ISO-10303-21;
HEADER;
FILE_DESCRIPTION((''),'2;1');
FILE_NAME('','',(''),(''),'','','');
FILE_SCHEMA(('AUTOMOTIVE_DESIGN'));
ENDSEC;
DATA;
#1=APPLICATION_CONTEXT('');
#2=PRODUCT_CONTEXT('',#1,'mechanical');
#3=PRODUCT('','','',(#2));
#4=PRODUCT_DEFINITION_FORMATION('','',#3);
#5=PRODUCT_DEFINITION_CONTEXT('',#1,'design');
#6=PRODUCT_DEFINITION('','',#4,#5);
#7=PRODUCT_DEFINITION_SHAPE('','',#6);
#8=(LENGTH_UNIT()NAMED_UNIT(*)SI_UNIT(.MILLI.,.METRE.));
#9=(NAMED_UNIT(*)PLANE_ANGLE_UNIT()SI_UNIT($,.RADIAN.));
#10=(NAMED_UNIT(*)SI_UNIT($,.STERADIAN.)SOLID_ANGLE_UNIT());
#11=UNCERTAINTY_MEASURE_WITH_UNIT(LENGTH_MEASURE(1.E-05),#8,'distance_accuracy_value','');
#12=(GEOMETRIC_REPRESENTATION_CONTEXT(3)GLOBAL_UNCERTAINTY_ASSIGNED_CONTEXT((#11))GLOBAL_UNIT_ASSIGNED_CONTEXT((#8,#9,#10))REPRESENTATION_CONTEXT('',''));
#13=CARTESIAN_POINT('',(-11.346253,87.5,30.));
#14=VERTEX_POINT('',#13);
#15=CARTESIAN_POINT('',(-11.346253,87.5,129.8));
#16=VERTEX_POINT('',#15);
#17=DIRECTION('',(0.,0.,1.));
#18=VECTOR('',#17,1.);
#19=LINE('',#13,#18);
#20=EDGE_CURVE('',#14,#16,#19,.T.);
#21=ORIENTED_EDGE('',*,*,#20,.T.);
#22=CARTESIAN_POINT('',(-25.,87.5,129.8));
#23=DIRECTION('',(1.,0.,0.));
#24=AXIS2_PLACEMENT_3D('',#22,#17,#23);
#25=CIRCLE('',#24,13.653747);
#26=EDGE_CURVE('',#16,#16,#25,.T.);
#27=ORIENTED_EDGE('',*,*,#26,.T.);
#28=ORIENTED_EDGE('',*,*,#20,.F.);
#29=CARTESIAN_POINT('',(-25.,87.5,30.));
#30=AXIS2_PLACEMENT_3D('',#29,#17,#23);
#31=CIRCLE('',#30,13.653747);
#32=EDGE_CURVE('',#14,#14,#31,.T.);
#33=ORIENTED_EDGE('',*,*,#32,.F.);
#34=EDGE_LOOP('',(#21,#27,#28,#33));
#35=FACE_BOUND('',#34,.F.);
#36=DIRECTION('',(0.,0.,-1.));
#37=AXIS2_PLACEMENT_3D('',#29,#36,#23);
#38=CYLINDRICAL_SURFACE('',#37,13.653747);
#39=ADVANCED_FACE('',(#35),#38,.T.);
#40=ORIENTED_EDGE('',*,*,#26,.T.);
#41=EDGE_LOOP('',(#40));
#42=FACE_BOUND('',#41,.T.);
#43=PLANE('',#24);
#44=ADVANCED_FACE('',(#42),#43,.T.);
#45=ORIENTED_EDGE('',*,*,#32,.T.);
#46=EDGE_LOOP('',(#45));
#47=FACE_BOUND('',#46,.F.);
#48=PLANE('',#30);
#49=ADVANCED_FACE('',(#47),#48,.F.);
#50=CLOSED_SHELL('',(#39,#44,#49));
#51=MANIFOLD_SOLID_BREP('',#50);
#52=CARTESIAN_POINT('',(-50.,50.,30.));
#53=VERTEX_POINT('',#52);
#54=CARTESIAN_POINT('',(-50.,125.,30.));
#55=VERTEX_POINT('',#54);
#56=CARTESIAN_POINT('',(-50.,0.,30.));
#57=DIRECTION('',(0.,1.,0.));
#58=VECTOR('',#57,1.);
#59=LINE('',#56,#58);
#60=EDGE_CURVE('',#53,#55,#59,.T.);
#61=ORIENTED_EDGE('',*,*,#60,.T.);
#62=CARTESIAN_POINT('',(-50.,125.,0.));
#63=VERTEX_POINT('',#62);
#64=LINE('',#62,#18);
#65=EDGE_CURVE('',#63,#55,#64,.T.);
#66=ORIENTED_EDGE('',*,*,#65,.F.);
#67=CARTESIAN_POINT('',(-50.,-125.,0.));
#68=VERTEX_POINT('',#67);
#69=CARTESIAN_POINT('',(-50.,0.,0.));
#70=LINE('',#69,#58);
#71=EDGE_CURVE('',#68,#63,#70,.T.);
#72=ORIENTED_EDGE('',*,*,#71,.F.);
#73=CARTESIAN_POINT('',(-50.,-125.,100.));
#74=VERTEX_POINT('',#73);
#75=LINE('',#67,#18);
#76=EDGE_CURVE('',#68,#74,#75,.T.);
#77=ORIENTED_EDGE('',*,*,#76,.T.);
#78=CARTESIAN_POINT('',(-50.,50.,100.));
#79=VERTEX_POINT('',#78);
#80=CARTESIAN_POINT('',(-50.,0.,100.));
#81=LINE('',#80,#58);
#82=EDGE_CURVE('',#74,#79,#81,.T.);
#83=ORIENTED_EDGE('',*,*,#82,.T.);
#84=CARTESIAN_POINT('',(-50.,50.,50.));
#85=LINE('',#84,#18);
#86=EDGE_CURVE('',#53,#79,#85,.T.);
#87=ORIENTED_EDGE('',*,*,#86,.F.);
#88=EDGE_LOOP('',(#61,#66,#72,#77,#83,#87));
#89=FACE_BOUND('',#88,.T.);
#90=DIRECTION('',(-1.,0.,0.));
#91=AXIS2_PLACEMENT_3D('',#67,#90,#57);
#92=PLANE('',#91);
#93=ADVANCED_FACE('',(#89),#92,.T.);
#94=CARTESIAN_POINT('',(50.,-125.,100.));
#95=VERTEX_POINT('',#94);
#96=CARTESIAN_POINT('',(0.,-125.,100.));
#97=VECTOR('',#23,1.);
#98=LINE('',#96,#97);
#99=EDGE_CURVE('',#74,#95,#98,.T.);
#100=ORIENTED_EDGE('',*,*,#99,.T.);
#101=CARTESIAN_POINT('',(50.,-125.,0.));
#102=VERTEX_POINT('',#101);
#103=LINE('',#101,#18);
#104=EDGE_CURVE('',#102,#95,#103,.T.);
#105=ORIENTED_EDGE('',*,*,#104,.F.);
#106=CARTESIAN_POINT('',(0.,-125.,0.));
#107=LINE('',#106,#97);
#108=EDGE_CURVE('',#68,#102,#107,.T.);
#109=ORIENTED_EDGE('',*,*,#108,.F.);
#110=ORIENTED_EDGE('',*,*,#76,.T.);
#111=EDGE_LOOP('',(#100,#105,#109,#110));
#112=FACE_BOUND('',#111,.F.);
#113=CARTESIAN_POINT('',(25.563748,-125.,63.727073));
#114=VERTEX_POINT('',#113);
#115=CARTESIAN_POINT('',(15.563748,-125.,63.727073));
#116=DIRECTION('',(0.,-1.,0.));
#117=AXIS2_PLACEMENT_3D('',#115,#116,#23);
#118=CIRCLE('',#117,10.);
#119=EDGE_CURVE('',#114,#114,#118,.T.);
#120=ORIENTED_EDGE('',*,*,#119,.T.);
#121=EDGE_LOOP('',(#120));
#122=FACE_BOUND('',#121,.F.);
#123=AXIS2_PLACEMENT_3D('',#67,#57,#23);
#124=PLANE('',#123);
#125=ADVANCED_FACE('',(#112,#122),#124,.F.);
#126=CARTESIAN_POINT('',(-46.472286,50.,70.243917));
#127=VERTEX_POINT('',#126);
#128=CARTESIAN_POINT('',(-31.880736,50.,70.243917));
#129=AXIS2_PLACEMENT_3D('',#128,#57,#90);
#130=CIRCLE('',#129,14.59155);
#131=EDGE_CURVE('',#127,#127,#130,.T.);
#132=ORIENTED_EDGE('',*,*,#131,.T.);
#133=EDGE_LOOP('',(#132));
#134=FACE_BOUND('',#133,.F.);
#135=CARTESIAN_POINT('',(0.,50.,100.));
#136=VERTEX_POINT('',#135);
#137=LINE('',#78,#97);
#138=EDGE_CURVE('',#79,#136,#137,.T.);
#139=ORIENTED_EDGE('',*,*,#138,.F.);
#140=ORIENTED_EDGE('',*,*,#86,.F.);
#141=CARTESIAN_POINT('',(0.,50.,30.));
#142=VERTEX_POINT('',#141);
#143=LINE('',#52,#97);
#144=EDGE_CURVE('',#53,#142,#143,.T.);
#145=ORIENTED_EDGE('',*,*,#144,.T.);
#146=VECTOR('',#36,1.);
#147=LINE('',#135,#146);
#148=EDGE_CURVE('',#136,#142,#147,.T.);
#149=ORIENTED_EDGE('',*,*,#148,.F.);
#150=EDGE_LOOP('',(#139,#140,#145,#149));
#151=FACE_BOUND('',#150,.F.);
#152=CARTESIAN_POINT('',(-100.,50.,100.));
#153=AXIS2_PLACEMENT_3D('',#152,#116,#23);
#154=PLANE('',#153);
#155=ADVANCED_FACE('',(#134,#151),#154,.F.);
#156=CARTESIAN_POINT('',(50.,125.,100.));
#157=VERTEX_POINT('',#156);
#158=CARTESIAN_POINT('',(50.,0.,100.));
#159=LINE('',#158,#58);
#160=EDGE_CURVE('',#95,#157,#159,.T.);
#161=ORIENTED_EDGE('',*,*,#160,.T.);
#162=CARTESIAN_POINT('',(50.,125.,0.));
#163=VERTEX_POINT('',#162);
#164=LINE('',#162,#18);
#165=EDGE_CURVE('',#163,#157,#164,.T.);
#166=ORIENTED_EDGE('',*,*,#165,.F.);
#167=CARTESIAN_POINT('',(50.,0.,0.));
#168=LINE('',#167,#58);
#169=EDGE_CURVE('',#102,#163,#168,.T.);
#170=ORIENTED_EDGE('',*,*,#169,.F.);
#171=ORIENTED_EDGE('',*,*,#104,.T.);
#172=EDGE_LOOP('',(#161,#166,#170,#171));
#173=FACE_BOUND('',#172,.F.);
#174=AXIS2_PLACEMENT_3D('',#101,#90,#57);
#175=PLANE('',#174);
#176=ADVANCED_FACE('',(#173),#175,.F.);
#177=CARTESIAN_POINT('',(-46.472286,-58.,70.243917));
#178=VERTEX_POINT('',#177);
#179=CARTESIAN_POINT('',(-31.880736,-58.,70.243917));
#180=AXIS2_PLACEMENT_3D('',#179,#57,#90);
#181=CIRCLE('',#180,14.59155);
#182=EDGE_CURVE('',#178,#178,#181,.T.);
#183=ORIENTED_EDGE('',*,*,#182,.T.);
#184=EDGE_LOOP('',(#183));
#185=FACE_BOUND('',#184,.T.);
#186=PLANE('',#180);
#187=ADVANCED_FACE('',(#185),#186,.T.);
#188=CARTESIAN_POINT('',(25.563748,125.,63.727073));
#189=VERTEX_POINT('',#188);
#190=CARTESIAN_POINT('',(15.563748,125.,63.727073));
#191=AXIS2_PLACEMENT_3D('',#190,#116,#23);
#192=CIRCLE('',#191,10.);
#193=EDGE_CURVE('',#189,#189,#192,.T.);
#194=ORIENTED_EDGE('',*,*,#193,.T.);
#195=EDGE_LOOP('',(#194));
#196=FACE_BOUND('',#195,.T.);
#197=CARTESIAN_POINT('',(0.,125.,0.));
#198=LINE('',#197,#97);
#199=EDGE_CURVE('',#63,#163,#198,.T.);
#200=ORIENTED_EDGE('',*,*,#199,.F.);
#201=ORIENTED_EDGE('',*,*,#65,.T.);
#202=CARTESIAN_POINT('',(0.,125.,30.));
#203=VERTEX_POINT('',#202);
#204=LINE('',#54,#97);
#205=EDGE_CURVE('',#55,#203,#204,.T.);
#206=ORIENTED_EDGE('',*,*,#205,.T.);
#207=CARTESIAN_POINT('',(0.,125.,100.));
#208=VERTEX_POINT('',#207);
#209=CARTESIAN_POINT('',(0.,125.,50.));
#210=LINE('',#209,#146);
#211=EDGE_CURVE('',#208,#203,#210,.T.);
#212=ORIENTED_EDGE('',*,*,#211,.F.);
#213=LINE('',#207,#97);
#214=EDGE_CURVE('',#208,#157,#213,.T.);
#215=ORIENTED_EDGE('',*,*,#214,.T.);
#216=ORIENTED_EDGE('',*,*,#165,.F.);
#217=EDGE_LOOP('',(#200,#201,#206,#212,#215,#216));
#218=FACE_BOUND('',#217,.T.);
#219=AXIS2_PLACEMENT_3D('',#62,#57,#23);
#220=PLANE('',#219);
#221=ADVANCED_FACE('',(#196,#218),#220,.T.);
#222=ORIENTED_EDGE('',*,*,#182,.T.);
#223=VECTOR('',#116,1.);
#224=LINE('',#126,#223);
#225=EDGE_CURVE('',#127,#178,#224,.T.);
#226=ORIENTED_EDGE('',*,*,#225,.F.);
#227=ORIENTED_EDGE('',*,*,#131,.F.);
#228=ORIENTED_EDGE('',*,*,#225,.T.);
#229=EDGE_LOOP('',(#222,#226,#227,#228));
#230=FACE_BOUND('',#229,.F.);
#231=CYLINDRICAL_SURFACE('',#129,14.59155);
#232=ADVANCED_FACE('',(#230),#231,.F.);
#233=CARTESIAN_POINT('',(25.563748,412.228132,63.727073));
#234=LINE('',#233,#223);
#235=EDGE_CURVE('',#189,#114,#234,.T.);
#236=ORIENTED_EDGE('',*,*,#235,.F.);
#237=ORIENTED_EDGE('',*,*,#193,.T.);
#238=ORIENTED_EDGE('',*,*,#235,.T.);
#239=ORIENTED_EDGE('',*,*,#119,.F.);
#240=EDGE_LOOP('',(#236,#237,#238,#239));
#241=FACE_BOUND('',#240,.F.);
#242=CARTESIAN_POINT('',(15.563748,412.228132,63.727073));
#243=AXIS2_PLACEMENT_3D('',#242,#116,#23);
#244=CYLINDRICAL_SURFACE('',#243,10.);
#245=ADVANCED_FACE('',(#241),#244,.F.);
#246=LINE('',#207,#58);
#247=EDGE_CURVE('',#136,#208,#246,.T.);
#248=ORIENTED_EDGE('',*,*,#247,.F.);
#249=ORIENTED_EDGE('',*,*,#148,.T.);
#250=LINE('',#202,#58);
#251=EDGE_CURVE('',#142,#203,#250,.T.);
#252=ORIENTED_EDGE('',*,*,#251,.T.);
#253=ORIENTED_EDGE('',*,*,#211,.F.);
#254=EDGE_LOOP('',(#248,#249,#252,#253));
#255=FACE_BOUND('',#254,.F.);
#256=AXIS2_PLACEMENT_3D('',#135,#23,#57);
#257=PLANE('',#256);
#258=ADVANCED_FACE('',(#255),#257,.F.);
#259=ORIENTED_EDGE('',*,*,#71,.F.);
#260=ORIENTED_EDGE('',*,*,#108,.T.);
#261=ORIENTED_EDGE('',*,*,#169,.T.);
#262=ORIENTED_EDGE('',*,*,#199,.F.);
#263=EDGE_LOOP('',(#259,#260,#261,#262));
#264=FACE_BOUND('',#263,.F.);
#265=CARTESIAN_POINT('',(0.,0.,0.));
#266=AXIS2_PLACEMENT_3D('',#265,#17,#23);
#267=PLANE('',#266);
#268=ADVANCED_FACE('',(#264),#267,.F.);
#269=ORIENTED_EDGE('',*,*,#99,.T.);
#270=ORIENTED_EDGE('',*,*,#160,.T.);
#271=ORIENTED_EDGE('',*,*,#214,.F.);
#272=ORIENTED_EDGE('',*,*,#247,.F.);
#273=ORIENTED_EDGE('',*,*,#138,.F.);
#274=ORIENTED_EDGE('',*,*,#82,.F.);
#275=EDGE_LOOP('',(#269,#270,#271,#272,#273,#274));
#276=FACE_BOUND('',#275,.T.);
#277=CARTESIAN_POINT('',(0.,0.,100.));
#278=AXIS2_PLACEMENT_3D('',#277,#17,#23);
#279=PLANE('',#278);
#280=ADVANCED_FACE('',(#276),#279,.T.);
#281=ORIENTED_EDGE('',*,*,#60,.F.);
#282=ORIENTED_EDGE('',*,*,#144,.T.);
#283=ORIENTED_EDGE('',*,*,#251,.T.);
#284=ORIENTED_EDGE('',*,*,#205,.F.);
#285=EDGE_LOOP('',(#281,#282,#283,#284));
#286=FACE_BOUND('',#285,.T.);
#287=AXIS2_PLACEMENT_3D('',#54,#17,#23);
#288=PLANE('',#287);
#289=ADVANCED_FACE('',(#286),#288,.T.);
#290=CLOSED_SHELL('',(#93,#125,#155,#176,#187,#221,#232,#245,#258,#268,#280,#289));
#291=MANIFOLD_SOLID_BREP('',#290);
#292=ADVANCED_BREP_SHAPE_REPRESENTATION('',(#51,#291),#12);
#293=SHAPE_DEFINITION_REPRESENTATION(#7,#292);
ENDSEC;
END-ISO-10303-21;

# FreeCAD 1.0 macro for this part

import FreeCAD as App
import Part
import Sketcher
from FreeCAD import Vector

doc = App.newDocument("Part")
params = doc.addObject("Spreadsheet::Sheet", "Params")
for row, (alias, value) in enumerate([
    ("sketch1_width", "100 mm"),
    ("sketch1_height", "250 mm"),
    ("pad1_length", "100 mm"),
    ("sketch2_width", "100 mm"),
    ("sketch2_height", "150 mm"),
    ("pocket1_length", "70 mm"),
    ("pocket2_length", "108 mm"),
    ("sketch4_diameter", "20 mm"),
    ("hole_diameter", "20 mm"),
    ("pad2_length", "99.8 mm"),
], start=1):
    params.set(f"A{row}", alias)
    params.set(f"B{row}", "=" + value)
    params.setAlias(f"B{row}", alias)

body = doc.addObject("PartDesign::Body", "Body")

# Sketch on XY plane
sketch1 = body.newObject("Sketcher::SketchObject", "Sketch")
sketch1.AttachmentSupport = (doc.getObject("XY_Plane"), [""])
sketch1.MapMode = "FlatFace"
sketch1.addGeometry([
    Part.LineSegment(Vector(-50, 125, 0), Vector(-50, -125, 0)),
    Part.LineSegment(Vector(-50, -125, 0), Vector(50, -125, 0)),
    Part.LineSegment(Vector(50, -125, 0), Vector(50, 125, 0)),
    Part.LineSegment(Vector(50, 125, 0), Vector(-50, 125, 0)),
], False)
sketch1.addConstraint([
    Sketcher.Constraint("Coincident", 0, 2, 1, 1),
    Sketcher.Constraint("Coincident", 1, 2, 2, 1),
    Sketcher.Constraint("Coincident", 2, 2, 3, 1),
    Sketcher.Constraint("Coincident", 3, 2, 0, 1),
    Sketcher.Constraint("Vertical", 0),
    Sketcher.Constraint("Horizontal", 1),
    Sketcher.Constraint("Vertical", 2),
    Sketcher.Constraint("Horizontal", 3),
    Sketcher.Constraint("Symmetric", 0, 2, 2, 2, -1, 1),
    Sketcher.Constraint("DistanceX", 1, 1, 1, 2, 100.0),
    Sketcher.Constraint("DistanceY", 0, 2, 0, 1, 250.0),
])
sketch1.setExpression("Constraints[9]", "Params.sketch1_width")
sketch1.setExpression("Constraints[10]", "Params.sketch1_height")
pad1 = body.newObject("PartDesign::Pad", "Pad")
pad1.Profile = sketch1
pad1.setExpression("Length", "Params.pad1_length")

# Sketch on XY plane
sketch2 = body.newObject("Sketcher::SketchObject", "Sketch001")
sketch2.AttachmentSupport = (doc.getObject("XY_Plane"), [""])
sketch2.MapMode = "FlatFace"
sketch2.AttachmentOffset = App.Placement(Vector(0, 0, 100), App.Rotation())
sketch2.addGeometry([
    Part.LineSegment(Vector(-100, 200, 0), Vector(-100, 50, 0)),
    Part.LineSegment(Vector(-100, 50, 0), Vector(0, 50, 0)),
    Part.LineSegment(Vector(0, 50, 0), Vector(0, 200, 0)),
    Part.LineSegment(Vector(0, 200, 0), Vector(-100, 200, 0)),
], False)
sketch2.addConstraint([
    Sketcher.Constraint("Coincident", 0, 2, 1, 1),
    Sketcher.Constraint("Coincident", 1, 2, 2, 1),
    Sketcher.Constraint("Coincident", 2, 2, 3, 1),
    Sketcher.Constraint("Coincident", 3, 2, 0, 1),
    Sketcher.Constraint("Vertical", 0),
    Sketcher.Constraint("Horizontal", 1),
    Sketcher.Constraint("Vertical", 2),
    Sketcher.Constraint("Horizontal", 3),
    Sketcher.Constraint("PointOnObject", 1, 2, -2),
    Sketcher.Constraint("DistanceX", 1, 1, 1, 2, 100.0),
    Sketcher.Constraint("DistanceY", 0, 2, 0, 1, 150.0),
    Sketcher.Constraint("DistanceY", -1, 1, 0, 2, 50.0),
])
sketch2.setExpression("Constraints[9]", "Params.sketch2_width")
sketch2.setExpression("Constraints[10]", "Params.sketch2_height")
pocket1 = body.newObject("PartDesign::Pocket", "Pocket")
pocket1.Profile = sketch2
pocket1.setExpression("Length", "Params.pocket1_length")

# Sketch on XZ plane
sketch3 = body.newObject("Sketcher::SketchObject", "Sketch002")
sketch3.AttachmentSupport = (doc.getObject("XZ_Plane"), [""])
sketch3.MapMode = "FlatFace"
sketch3.AttachmentOffset = App.Placement(Vector(0, 0, -50), App.Rotation())
sketch3.addGeometry(Part.Circle(Vector(-32, 70, 0), Vector(0, 0, 1), 15), False)
sketch3.addConstraint([
    Sketcher.Constraint("Diameter", 0, 29.1831),
    Sketcher.Constraint("DistanceX", 0, 3, -1, 1, 31.880736),
    Sketcher.Constraint("DistanceY", -1, 1, 0, 3, 70.243917),
])
pocket2 = body.newObject("PartDesign::Pocket", "Pocket001")
pocket2.Profile = sketch3
pocket2.setExpression("Length", "Params.pocket2_length")
pocket2.Reversed = True

# Sketch on XZ plane
sketch4 = body.newObject("Sketcher::SketchObject", "Sketch003")
sketch4.AttachmentSupport = (doc.getObject("XZ_Plane"), [""])
sketch4.MapMode = "FlatFace"
sketch4.AttachmentOffset = App.Placement(Vector(0, 0, -125), App.Rotation())
sketch4.addGeometry(Part.Circle(Vector(16, 64, 0), Vector(0, 0, 1), 10), False)
sketch4.addConstraint([
    Sketcher.Constraint("Diameter", 0, 20.0),
    Sketcher.Constraint("DistanceX", -1, 1, 0, 3, 15.563748),
    Sketcher.Constraint("DistanceY", -1, 1, 0, 3, 63.727073),
])
sketch4.setExpression("Constraints[0]", "Params.sketch4_diameter")
doc.recompute()
hole = body.newObject("PartDesign::Hole", "Hole")
hole.Profile = sketch4
hole.ThreadType = "None"
hole.setExpression("Diameter", "Params.hole_diameter")
hole.DepthType = "ThroughAll"
hole.Reversed = True
body2 = doc.addObject("PartDesign::Body", "Body001")

# Sketch on XY plane
sketch5 = body2.newObject("Sketcher::SketchObject", "Sketch004")
sketch5.AttachmentSupport = (doc.getObject("XY_Plane001"), [""])
sketch5.MapMode = "FlatFace"
sketch5.AttachmentOffset = App.Placement(Vector(0, 0, 30), App.Rotation())
sketch5.addGeometry(Part.Circle(Vector(-25, 88, 0), Vector(0, 0, 1), 14), False)
sketch5.addConstraint([
    Sketcher.Constraint("DistanceX", 0, 3, -1, 1, 25.0),
    Sketcher.Constraint("DistanceY", -1, 1, 0, 3, 87.5),
    Sketcher.Constraint("Diameter", 0, 27.307494),
])
pad2 = body2.newObject("PartDesign::Pad", "Pad001")
pad2.Profile = sketch5
pad2.setExpression("Length", "Params.pad2_length")

doc.recompute()
